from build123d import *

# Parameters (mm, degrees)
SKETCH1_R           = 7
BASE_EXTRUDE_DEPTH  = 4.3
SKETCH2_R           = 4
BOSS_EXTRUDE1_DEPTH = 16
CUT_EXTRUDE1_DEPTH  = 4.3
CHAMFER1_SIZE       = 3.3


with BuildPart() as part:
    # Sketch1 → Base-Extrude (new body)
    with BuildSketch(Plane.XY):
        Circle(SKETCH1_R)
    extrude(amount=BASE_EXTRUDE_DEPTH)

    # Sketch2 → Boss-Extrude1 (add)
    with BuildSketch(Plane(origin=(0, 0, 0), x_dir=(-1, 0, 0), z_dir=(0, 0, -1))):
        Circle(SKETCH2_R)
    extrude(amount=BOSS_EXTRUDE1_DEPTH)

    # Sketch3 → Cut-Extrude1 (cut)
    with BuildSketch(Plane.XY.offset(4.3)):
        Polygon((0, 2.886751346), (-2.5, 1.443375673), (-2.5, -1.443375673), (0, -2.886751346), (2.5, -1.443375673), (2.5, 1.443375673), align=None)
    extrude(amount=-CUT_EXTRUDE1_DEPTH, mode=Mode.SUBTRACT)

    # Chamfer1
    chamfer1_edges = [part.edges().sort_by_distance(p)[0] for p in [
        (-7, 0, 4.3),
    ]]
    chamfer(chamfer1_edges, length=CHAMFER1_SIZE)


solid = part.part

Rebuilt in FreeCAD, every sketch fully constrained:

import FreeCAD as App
import Part
import Sketcher

V = App.Vector
Q = App.Units.Quantity


def edges_at(feature, points):
    """Names of the edges that pass closest to the given points."""
    edges = feature.Shape.Edges
    near = lambda p: min(range(len(edges)), key=lambda i: edges[i].distToShape(Part.Vertex(*p))[0])
    return sorted({f"Edge{near(p) + 1}" for p in points})


def add_polygon(sketch, points):
    """Adds a closed chain of lines whose ends are joined by coincident constraints."""
    first, n = sketch.GeometryCount, len(points)
    for a, b in zip(points, points[1:] + points[:1]):
        sketch.addGeometry(Part.LineSegment(App.Vector(*a, 0), App.Vector(*b, 0)), False)
    for i in range(n):
        sketch.addConstraint(Sketcher.Constraint("Coincident", first + i, 2, first + (i + 1) % n, 1))

doc = App.newDocument("Part")
params = doc.addObject("Spreadsheet::Sheet", "Params")
for row, (alias, value) in enumerate([
    ("sketch1_diameter", "14 mm"),
    ("pad1_length", "4.3 mm"),
    ("sketch2_diameter", "8 mm"),
    ("pad2_length", "16 mm"),
    ("pocket1_length", "4.3 mm"),
    ("chamfer_size", "3.3 mm"),
], start=1):
    params.set(f"A{row}", alias)
    params.set(f"B{row}", "=" + value)
    params.setAlias(f"B{row}", alias)

body = doc.addObject("PartDesign::Body", "Body")

# Sketch on XY plane
sketch1 = doc.addObject("Sketcher::SketchObject", "Sketch")
body.addObject(sketch1)
sketch1.AttachmentSupport = (doc.XY_Plane, [""])
sketch1.MapMode = "FlatFace"
sketch1.addGeometry(Part.Circle(V(0, 0, 0), V(0, 0, 1), 7), False)
sketch1.addConstraint([
    Sketcher.Constraint("Coincident", 0, 3, -1, 1),
    Sketcher.Constraint("Diameter", 0, Q("14 mm")),
])
sketch1.setExpression("Constraints[1]", "Params.sketch1_diameter")
pad1 = doc.addObject("PartDesign::Pad", "Pad")
body.addObject(pad1)
pad1.Profile = sketch1
pad1.setExpression("Length", "Params.pad1_length")

# Sketch on XY plane
sketch2 = doc.addObject("Sketcher::SketchObject", "Sketch001")
body.addObject(sketch2)
sketch2.AttachmentSupport = (doc.XY_Plane, [""])
sketch2.MapMode = "FlatFace"
sketch2.addGeometry(Part.Circle(V(0, 0, 0), V(0, 0, 1), 4), False)
sketch2.addConstraint([
    Sketcher.Constraint("Coincident", 0, 3, -1, 1),
    Sketcher.Constraint("Diameter", 0, Q("8 mm")),
])
sketch2.setExpression("Constraints[1]", "Params.sketch2_diameter")
pad2 = doc.addObject("PartDesign::Pad", "Pad001")
body.addObject(pad2)
pad2.Profile = sketch2
pad2.setExpression("Length", "Params.pad2_length")
pad2.Reversed = True

# Sketch on XY plane
sketch3 = doc.addObject("Sketcher::SketchObject", "Sketch002")
body.addObject(sketch3)
sketch3.AttachmentSupport = (doc.XY_Plane, [""])
sketch3.MapMode = "FlatFace"
sketch3.AttachmentOffset = App.Placement(V(0, 0, 4.3), App.Rotation())
add_polygon(sketch3, [(0, 2.9), (-2.5, 1.4), (-2.5, -1.4), (0, -2.9), (2.5, -1.4), (2.5, 1.4)])  # lines 0-5
sketch3.addConstraint([
    Sketcher.Constraint("Vertical", 1),
    Sketcher.Constraint("Vertical", 4),
    Sketcher.Constraint("Symmetric", 0, 2, 3, 2, -1, 1),
    Sketcher.Constraint("Symmetric", 2, 2, 5, 2, -1, 1),
    Sketcher.Constraint("PointOnObject", 2, 2, -2),
    Sketcher.Constraint("Parallel", 2, 5),
    Sketcher.Constraint("Horizontal", 1, 2, 3, 2),
    Sketcher.Constraint("Angle", 0, Q("-150 deg")),
    Sketcher.Constraint("DistanceX", 1, 2, 3, 2, Q("5 mm")),
    Sketcher.Constraint("DistanceY", 1, 2, 1, 1, Q("2.886751 mm")),
])
pocket1 = doc.addObject("PartDesign::Pocket", "Pocket")
body.addObject(pocket1)
pocket1.Profile = sketch3
pocket1.setExpression("Length", "Params.pocket1_length")
doc.recompute()

chamfer = doc.addObject("PartDesign::Chamfer", "Chamfer")
body.addObject(chamfer)
chamfer.Base = (pocket1, edges_at(pocket1, [(-7, 0, 4.3)]))
chamfer.setExpression("Size", "Params.chamfer_size")

doc.recompute()
